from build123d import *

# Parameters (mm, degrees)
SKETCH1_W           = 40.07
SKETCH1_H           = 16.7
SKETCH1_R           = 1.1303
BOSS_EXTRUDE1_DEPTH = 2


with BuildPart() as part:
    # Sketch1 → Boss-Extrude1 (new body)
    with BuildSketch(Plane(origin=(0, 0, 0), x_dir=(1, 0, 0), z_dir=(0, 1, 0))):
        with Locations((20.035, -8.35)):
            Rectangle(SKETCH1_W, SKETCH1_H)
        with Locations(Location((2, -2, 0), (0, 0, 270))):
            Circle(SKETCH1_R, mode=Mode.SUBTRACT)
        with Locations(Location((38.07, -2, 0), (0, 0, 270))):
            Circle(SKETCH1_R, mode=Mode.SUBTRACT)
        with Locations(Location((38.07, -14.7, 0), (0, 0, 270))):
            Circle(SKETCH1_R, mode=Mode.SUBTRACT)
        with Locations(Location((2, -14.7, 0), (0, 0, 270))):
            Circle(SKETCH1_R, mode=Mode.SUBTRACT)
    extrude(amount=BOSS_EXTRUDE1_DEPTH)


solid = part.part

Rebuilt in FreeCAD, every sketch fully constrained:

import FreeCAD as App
import Part
import Sketcher
from FreeCAD import Vector
Q = App.Units.Quantity


def add_polygon(sketch, points):
    """Adds a closed chain of lines whose ends are joined by coincident constraints."""
    first, n = sketch.GeometryCount, len(points)
    for a, b in zip(points, points[1:] + points[:1]):
        sketch.addGeometry(Part.LineSegment(App.Vector(*a, 0), App.Vector(*b, 0)), False)
    for i in range(n):
        sketch.addConstraint(Sketcher.Constraint("Coincident", first + i, 2, first + (i + 1) % n, 1))

doc = App.newDocument("Part")
params = doc.addObject("Spreadsheet::Sheet", "Params")
for row, (alias, value) in enumerate([
    ("sketch1_height", "16.7 mm"),
    ("sketch1_width", "40.07 mm"),
    ("pad1_length", "2 mm"),
], start=1):
    params.set(f"A{row}", alias)
    params.set(f"B{row}", "=" + value)
    params.setAlias(f"B{row}", alias)

body = doc.addObject("PartDesign::Body", "Body")

# Sketch on XZ plane
sketch1 = body.newObject("Sketcher::SketchObject", "Sketch")
sketch1.AttachmentSupport = (doc.getObject("XZ_Plane"), [""])
sketch1.MapMode = "FlatFace"
add_polygon(sketch1, [(0, 0), (0, 16.7), (40.1, 16.7), (40.1, 0)])  # lines 0-3
sketch1.addGeometry(Part.Circle(Vector(2, 14.7, 0), Vector(0, 0, 1), 1.1), False)  # 4
sketch1.addGeometry(Part.Circle(Vector(38.1, 14.7, 0), Vector(0, 0, 1), 1.1), False)  # 5
sketch1.addGeometry(Part.Circle(Vector(2, 2, 0), Vector(0, 0, 1), 1.1), False)  # 6
sketch1.addGeometry(Part.Circle(Vector(38.1, 2, 0), Vector(0, 0, 1), 1.1), False)  # 7
sketch1.addConstraint(Sketcher.Constraint("Vertical", 0))
sketch1.addConstraint(Sketcher.Constraint("Horizontal", 1))
sketch1.addConstraint(Sketcher.Constraint("Vertical", 2))
sketch1.addConstraint(Sketcher.Constraint("Horizontal", 3))
sketch1.addConstraint(Sketcher.Constraint("Coincident", 3, 2, -1, 1))
sketch1.addConstraint(Sketcher.Constraint("Equal", 4, 5))
sketch1.addConstraint(Sketcher.Constraint("Equal", 5, 6))
sketch1.addConstraint(Sketcher.Constraint("Equal", 6, 7))
sketch1.addConstraint(Sketcher.Constraint("Horizontal", 4, 3, 5, 3))
sketch1.addConstraint(Sketcher.Constraint("Horizontal", 6, 3, 7, 3))
sketch1.addConstraint(Sketcher.Constraint("Vertical", 4, 3, 6, 3))
sketch1.addConstraint(Sketcher.Constraint("Vertical", 5, 3, 7, 3))
sketch1.addConstraint(Sketcher.Constraint("DistanceY", 0, 1, 0, 2, Q("16.7 mm")))
sketch1.addConstraint(Sketcher.Constraint("DistanceX", -1, 1, 4, 3, Q("2 mm")))
sketch1.addConstraint(Sketcher.Constraint("DistanceY", -1, 1, 6, 3, Q("2 mm")))
sketch1.addConstraint(Sketcher.Constraint("DistanceY", 4, 3, 0, 2, Q("2 mm")))
sketch1.addConstraint(Sketcher.Constraint("DistanceX", 5, 3, 1, 2, Q("2 mm")))
sketch1.addConstraint(Sketcher.Constraint("Diameter", 4, Q("2.2606 mm")))
sketch1.addConstraint(Sketcher.Constraint("DistanceX", 1, 1, 1, 2, Q("40.07 mm")))
sketch1.setExpression("Constraints[16]", "Params.sketch1_height")
sketch1.setExpression("Constraints[22]", "Params.sketch1_width")
pad1 = body.newObject("PartDesign::Pad", "Pad")
pad1.Profile = sketch1
pad1.setExpression("Length", "Params.pad1_length")
pad1.Reversed = True

doc.recompute()
